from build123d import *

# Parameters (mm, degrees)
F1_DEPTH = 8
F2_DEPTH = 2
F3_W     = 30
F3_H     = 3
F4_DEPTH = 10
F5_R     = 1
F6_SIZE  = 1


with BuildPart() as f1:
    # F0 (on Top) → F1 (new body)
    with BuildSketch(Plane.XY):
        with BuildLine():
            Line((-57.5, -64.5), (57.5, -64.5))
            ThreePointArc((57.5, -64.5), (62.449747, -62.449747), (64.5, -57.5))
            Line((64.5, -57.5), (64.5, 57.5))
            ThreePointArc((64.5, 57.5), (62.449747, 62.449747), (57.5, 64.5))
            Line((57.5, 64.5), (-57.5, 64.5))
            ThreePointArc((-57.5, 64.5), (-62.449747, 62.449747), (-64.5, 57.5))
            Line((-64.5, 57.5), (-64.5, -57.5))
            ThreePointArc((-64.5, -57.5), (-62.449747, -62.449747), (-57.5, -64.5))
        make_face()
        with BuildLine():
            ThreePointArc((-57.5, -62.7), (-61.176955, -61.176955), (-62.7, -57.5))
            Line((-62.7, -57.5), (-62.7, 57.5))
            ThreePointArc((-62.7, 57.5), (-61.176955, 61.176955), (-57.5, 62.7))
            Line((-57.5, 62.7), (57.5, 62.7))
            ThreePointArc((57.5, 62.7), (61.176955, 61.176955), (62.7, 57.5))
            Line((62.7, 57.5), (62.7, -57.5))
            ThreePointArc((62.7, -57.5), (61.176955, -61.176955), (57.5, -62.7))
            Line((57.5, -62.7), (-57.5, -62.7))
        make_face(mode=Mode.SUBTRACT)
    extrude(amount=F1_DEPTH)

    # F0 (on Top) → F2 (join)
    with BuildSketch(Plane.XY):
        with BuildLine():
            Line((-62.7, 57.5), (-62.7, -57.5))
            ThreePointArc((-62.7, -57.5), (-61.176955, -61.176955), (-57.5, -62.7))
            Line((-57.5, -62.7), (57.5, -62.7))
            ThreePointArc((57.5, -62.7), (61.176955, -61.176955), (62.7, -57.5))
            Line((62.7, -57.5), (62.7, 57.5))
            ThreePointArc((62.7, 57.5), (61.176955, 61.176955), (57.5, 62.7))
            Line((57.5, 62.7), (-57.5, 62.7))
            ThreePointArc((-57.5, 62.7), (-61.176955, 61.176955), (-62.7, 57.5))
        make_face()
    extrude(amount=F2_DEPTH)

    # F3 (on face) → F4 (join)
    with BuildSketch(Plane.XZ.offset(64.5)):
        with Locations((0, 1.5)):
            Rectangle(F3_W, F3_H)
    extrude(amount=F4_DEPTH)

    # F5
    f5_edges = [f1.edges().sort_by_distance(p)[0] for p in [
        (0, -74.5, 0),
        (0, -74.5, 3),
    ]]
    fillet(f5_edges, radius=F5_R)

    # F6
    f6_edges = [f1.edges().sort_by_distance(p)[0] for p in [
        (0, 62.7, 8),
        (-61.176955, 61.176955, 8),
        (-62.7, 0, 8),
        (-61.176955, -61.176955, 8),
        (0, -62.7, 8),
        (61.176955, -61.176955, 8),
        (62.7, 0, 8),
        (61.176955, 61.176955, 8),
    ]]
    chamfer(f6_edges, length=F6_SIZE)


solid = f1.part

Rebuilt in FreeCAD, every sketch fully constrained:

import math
import FreeCAD as App
import Part
import Sketcher


def edges_at(feature, points):
    """Names of the edges that pass closest to the given points."""
    edges = feature.Shape.Edges
    near = lambda p: min(range(len(edges)), key=lambda i: edges[i].distToShape(Part.Vertex(*p))[0])
    return sorted({f"Edge{near(p) + 1}" for p in points})

doc = App.newDocument("Part")
body = doc.addObject("PartDesign::Body", "Body")

# Sketch on XY plane
sketch1 = doc.addObject("Sketcher::SketchObject", "Sketch")
body.addObject(sketch1)
sketch1.AttachmentSupport = (doc.XY_Plane, [""])
sketch1.MapMode = "FlatFace"
sketch1.addGeometry([
    Part.LineSegment(App.Vector(-58, -64, 0), App.Vector(58, -64, 0)),  # 0
    Part.ArcOfCircle(Part.Circle(App.Vector(57, -57, 0), App.Vector(0, 0, 1), 7), math.radians(-90), math.radians(0)),  # 1
    Part.LineSegment(App.Vector(64, -58, 0), App.Vector(64, 58, 0)),  # 2
    Part.ArcOfCircle(Part.Circle(App.Vector(57, 57, 0), App.Vector(0, 0, 1), 7), math.radians(0), math.radians(90)),  # 3
    Part.LineSegment(App.Vector(58, 64, 0), App.Vector(-58, 64, 0)),  # 4
    Part.ArcOfCircle(Part.Circle(App.Vector(-57, 57, 0), App.Vector(0, 0, 1), 7), math.radians(90), math.radians(180)),  # 5
    Part.LineSegment(App.Vector(-64, 58, 0), App.Vector(-64, -58, 0)),  # 6
    Part.ArcOfCircle(Part.Circle(App.Vector(-57, -57, 0), App.Vector(0, 0, 1), 7), math.radians(-180), math.radians(-90)),  # 7
    Part.LineSegment(App.Vector(58, -63, 0), App.Vector(-58, -63, 0)),  # 8
    Part.ArcOfCircle(Part.Circle(App.Vector(-57, -57, 0), App.Vector(0, 0, 1), 5), math.radians(-180), math.radians(-90)),  # 9
    Part.LineSegment(App.Vector(-63, -58, 0), App.Vector(-63, 58, 0)),  # 10
    Part.ArcOfCircle(Part.Circle(App.Vector(-57, 57, 0), App.Vector(0, 0, 1), 5), math.radians(90), math.radians(180)),  # 11
    Part.LineSegment(App.Vector(-58, 63, 0), App.Vector(58, 63, 0)),  # 12
    Part.ArcOfCircle(Part.Circle(App.Vector(57, 57, 0), App.Vector(0, 0, 1), 5), math.radians(0), math.radians(90)),  # 13
    Part.LineSegment(App.Vector(63, 58, 0), App.Vector(63, -58, 0)),  # 14
    Part.ArcOfCircle(Part.Circle(App.Vector(57, -57, 0), App.Vector(0, 0, 1), 5), math.radians(-90), math.radians(0)),  # 15
], False)
sketch1.addConstraint([
    Sketcher.Constraint("Tangent", 0, 2, 1, 1),
    Sketcher.Constraint("Tangent", 1, 2, 2, 1),
    Sketcher.Constraint("Tangent", 2, 2, 3, 1),
    Sketcher.Constraint("Tangent", 3, 2, 4, 1),
    Sketcher.Constraint("Tangent", 4, 2, 5, 1),
    Sketcher.Constraint("Tangent", 5, 2, 6, 1),
    Sketcher.Constraint("Tangent", 6, 2, 7, 1),
    Sketcher.Constraint("Tangent", 7, 2, 0, 1),
    Sketcher.Constraint("Tangent", 8, 2, 9, 2),
    Sketcher.Constraint("Tangent", 9, 1, 10, 1),
    Sketcher.Constraint("Tangent", 10, 2, 11, 2),
    Sketcher.Constraint("Tangent", 11, 1, 12, 1),
    Sketcher.Constraint("Tangent", 12, 2, 13, 2),
    Sketcher.Constraint("Tangent", 13, 1, 14, 1),
    Sketcher.Constraint("Tangent", 14, 2, 15, 2),
    Sketcher.Constraint("Tangent", 15, 1, 8, 1),
    Sketcher.Constraint("Horizontal", 0),
    Sketcher.Constraint("Vertical", 2),
    Sketcher.Constraint("Horizontal", 4),
    Sketcher.Constraint("Vertical", 6),
    Sketcher.Constraint("Horizontal", 8),
    Sketcher.Constraint("Vertical", 10),
    Sketcher.Constraint("Horizontal", 12),
    Sketcher.Constraint("Vertical", 14),
    Sketcher.Constraint("Coincident", 9, 3, 7, 3),
    Sketcher.Constraint("Coincident", 11, 3, 5, 3),
    Sketcher.Constraint("Coincident", 13, 3, 3, 3),
    Sketcher.Constraint("Equal", 1, 3),
    Sketcher.Constraint("Equal", 3, 5),
    Sketcher.Constraint("Equal", 5, 7),
    Sketcher.Constraint("Equal", 13, 15),
    Sketcher.Constraint("Symmetric", 1, 3, 5, 3, -1, 1),
    Sketcher.Constraint("Equal", 12, 2),
    Sketcher.Constraint("Radius", 1, 7.000002),
    Sketcher.Constraint("Radius", 9, 5.200001),
    Sketcher.Constraint("DistanceX", 0, 1, 0, 2, 115.0),
])
pad1 = doc.addObject("PartDesign::Pad", "Pad")
body.addObject(pad1)
pad1.Profile = sketch1
pad1.Length = 8

# Sketch on XY plane
sketch2 = doc.addObject("Sketcher::SketchObject", "Sketch001")
body.addObject(sketch2)
sketch2.AttachmentSupport = (doc.XY_Plane, [""])
sketch2.MapMode = "FlatFace"
sketch2.addGeometry([
    Part.LineSegment(App.Vector(-63, 58, 0), App.Vector(-63, -58, 0)),  # 0
    Part.ArcOfCircle(Part.Circle(App.Vector(-57, -57, 0), App.Vector(0, 0, 1), 5), math.radians(-180), math.radians(-90)),  # 1
    Part.LineSegment(App.Vector(-58, -63, 0), App.Vector(58, -63, 0)),  # 2
    Part.ArcOfCircle(Part.Circle(App.Vector(57, -57, 0), App.Vector(0, 0, 1), 5), math.radians(-90), math.radians(0)),  # 3
    Part.LineSegment(App.Vector(63, -58, 0), App.Vector(63, 58, 0)),  # 4
    Part.ArcOfCircle(Part.Circle(App.Vector(57, 57, 0), App.Vector(0, 0, 1), 5), math.radians(0), math.radians(90)),  # 5
    Part.LineSegment(App.Vector(58, 63, 0), App.Vector(-58, 63, 0)),  # 6
    Part.ArcOfCircle(Part.Circle(App.Vector(-57, 57, 0), App.Vector(0, 0, 1), 5), math.radians(90), math.radians(180)),  # 7
], False)
sketch2.addConstraint([
    Sketcher.Constraint("Tangent", 0, 2, 1, 1),
    Sketcher.Constraint("Tangent", 1, 2, 2, 1),
    Sketcher.Constraint("Tangent", 2, 2, 3, 1),
    Sketcher.Constraint("Tangent", 3, 2, 4, 1),
    Sketcher.Constraint("Tangent", 4, 2, 5, 1),
    Sketcher.Constraint("Tangent", 5, 2, 6, 1),
    Sketcher.Constraint("Tangent", 6, 2, 7, 1),
    Sketcher.Constraint("Tangent", 7, 2, 0, 1),
    Sketcher.Constraint("Vertical", 0),
    Sketcher.Constraint("Horizontal", 2),
    Sketcher.Constraint("Vertical", 4),
    Sketcher.Constraint("Horizontal", 6),
    Sketcher.Constraint("Equal", 1, 3),
    Sketcher.Constraint("Equal", 3, 5),
    Sketcher.Constraint("Equal", 5, 7),
    Sketcher.Constraint("Symmetric", 1, 3, 5, 3, -1, 1),
    Sketcher.Constraint("Equal", 6, 0),
    Sketcher.Constraint("Radius", 1, 5.200001),
    Sketcher.Constraint("DistanceX", 2, 1, 2, 2, 115.0),
])
pad2 = doc.addObject("PartDesign::Pad", "Pad001")
body.addObject(pad2)
pad2.Profile = sketch2
pad2.Length = 2

# Sketch on XZ plane
sketch3 = doc.addObject("Sketcher::SketchObject", "Sketch002")
body.addObject(sketch3)
sketch3.AttachmentSupport = (doc.XZ_Plane, [""])
sketch3.MapMode = "FlatFace"
sketch3.AttachmentOffset = App.Placement(App.Vector(0, 0, 64.5), App.Rotation())
sketch3.addGeometry([
    Part.LineSegment(App.Vector(-15, 3, 0), App.Vector(-15, 0, 0)),
    Part.LineSegment(App.Vector(-15, 0, 0), App.Vector(15, 0, 0)),
    Part.LineSegment(App.Vector(15, 0, 0), App.Vector(15, 3, 0)),
    Part.LineSegment(App.Vector(15, 3, 0), App.Vector(-15, 3, 0)),
], False)
sketch3.addConstraint([
    Sketcher.Constraint("Coincident", 0, 2, 1, 1),
    Sketcher.Constraint("Coincident", 1, 2, 2, 1),
    Sketcher.Constraint("Coincident", 2, 2, 3, 1),
    Sketcher.Constraint("Coincident", 3, 2, 0, 1),
    Sketcher.Constraint("Vertical", 0),
    Sketcher.Constraint("Horizontal", 1),
    Sketcher.Constraint("Vertical", 2),
    Sketcher.Constraint("Horizontal", 3),
    Sketcher.Constraint("Symmetric", 0, 2, 1, 2, -1, 1),
    Sketcher.Constraint("DistanceX", 1, 1, 1, 2, 30.0),
    Sketcher.Constraint("DistanceY", 0, 2, 0, 1, 3.0),
])
pad3 = doc.addObject("PartDesign::Pad", "Pad002")
body.addObject(pad3)
pad3.Profile = sketch3
pad3.Length = 10
doc.recompute()

fillet = doc.addObject("PartDesign::Fillet", "Fillet")
body.addObject(fillet)
fillet.Base = (pad3, edges_at(pad3, [(0, -74.5, 0), (0, -74.5, 3)]))
fillet.Radius = 1
doc.recompute()

chamfer = doc.addObject("PartDesign::Chamfer", "Chamfer")
body.addObject(chamfer)
chamfer.Base = (fillet, edges_at(fillet, [
    (0, 62.7, 8),
    (-61.177, 61.177, 8),
    (-62.7, 0, 8),
    (-61.177, -61.177, 8),
    (0, -62.7, 8),
    (61.177, -61.177, 8),
    (62.7, 0, 8),
    (61.177, 61.177, 8),
]))
chamfer.Size = 1

doc.recompute()
